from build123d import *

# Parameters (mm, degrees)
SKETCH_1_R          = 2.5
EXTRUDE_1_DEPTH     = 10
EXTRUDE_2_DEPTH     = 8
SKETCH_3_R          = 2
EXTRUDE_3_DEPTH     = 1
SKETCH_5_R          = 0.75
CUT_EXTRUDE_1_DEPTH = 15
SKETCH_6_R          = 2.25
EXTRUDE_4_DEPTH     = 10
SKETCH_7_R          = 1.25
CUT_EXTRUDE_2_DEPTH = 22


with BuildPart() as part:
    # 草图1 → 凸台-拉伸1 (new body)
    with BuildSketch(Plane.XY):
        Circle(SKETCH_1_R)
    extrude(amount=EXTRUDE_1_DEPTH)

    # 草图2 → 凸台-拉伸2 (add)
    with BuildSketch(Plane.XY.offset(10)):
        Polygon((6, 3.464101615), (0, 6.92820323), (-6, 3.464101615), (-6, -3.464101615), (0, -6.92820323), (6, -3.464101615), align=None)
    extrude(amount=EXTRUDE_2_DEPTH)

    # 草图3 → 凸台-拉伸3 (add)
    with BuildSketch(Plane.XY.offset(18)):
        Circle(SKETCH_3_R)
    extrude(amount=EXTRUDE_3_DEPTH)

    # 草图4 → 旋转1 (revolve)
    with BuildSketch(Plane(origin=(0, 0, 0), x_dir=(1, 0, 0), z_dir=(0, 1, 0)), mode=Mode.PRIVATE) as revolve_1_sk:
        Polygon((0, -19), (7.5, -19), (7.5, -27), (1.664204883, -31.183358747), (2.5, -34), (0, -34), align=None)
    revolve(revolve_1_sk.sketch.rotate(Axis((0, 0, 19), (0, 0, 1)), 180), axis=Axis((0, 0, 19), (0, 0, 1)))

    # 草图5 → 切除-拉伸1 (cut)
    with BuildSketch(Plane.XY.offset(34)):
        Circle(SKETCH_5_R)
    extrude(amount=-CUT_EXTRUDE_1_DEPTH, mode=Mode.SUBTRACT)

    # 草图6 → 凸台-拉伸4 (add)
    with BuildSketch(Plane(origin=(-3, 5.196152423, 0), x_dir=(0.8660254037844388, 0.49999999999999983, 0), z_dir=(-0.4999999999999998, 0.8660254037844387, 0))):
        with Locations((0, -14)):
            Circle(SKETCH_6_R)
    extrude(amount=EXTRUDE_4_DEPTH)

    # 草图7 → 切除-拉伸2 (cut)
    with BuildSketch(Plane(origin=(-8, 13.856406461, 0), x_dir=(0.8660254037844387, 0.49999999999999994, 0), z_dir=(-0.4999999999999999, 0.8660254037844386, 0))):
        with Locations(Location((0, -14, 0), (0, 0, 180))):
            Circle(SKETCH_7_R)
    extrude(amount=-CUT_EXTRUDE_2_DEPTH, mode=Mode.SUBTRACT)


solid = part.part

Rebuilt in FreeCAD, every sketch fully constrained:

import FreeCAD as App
import Part
import Sketcher
Q = App.Units.Quantity


def add_polygon(sketch, points):
    """Adds a closed chain of lines whose ends are joined by coincident constraints."""
    first, n = sketch.GeometryCount, len(points)
    for a, b in zip(points, points[1:] + points[:1]):
        sketch.addGeometry(Part.LineSegment(App.Vector(*a, 0), App.Vector(*b, 0)), False)
    for i in range(n):
        sketch.addConstraint(Sketcher.Constraint("Coincident", first + i, 2, first + (i + 1) % n, 1))

doc = App.newDocument("Part")
params = doc.addObject("Spreadsheet::Sheet", "Params")
for row, (alias, value) in enumerate([
    ("sketch1_diameter", "5 mm"),
    ("pad1_length", "10 mm"),
    ("pad2_length", "8 mm"),
    ("sketch3_diameter", "4 mm"),
    ("pad3_length", "1 mm"),
    ("sketch4_height", "15 mm"),
    ("sketch4_height2", "8 mm"),
    ("sketch4_width", "7.5 mm"),
    ("sketch4_width2", "2.5 mm"),
    ("revolution_angle", "360 deg"),
    ("sketch5_diameter", "1.5 mm"),
    ("pocket1_length", "15 mm"),
    ("sketch6_diameter", "4.5 mm"),
    ("pad4_length", "10 mm"),
    ("sketch7_diameter", "2.5 mm"),
    ("pocket2_length", "22 mm"),
], start=1):
    params.set(f"A{row}", alias)
    params.set(f"B{row}", "=" + value)
    params.setAlias(f"B{row}", alias)

body = doc.addObject("PartDesign::Body", "Body")

sketch1 = doc.addObject("Sketcher::SketchObject", "Sketch")
body.addObject(sketch1)
sketch1.AttachmentSupport = (doc.XY_Plane, [""])
sketch1.MapMode = "FlatFace"
sketch1.addGeometry(Part.Circle(App.Vector(0, 0, 0), App.Vector(0, 0, 1), 2.5), False)
sketch1.addConstraint([
    Sketcher.Constraint("Coincident", 0, 3, -1, 1),
    Sketcher.Constraint("Diameter", 0, Q("5 mm")),
])
sketch1.setExpression("Constraints[1]", "Params.sketch1_diameter")
pad1 = doc.addObject("PartDesign::Pad", "Pad")
body.addObject(pad1)
pad1.Profile = sketch1
pad1.setExpression("Length", "Params.pad1_length")

sketch2 = doc.addObject("Sketcher::SketchObject", "Sketch001")
body.addObject(sketch2)
sketch2.AttachmentSupport = (doc.XY_Plane, [""])
sketch2.MapMode = "FlatFace"
sketch2.AttachmentOffset = App.Placement(App.Vector(0, 0, 10), App.Rotation())
add_polygon(sketch2, [(6, 3), (0, 7), (-6, 3), (-6, -3), (0, -7), (6, -3)])
sketch2.addConstraint([
    Sketcher.Constraint("Vertical", 2),
    Sketcher.Constraint("Vertical", 5),
    Sketcher.Constraint("Symmetric", 0, 2, 3, 2, -1, 1),
    Sketcher.Constraint("Symmetric", 1, 2, 4, 2, -1, 1),
    Sketcher.Constraint("PointOnObject", 0, 2, -2),
    Sketcher.Constraint("Parallel", 0, 3),
    Sketcher.Constraint("Horizontal", 2, 2, 4, 2),
    Sketcher.Constraint("Angle", 0, Q("150 deg")),
    Sketcher.Constraint("DistanceX", 1, 2, -1, 1, Q("6 mm")),
    Sketcher.Constraint("DistanceY", -1, 1, 1, 2, Q("3.464102 mm")),
])
pad2 = doc.addObject("PartDesign::Pad", "Pad001")
body.addObject(pad2)
pad2.Profile = sketch2
pad2.setExpression("Length", "Params.pad2_length")

sketch3 = doc.addObject("Sketcher::SketchObject", "Sketch002")
body.addObject(sketch3)
sketch3.AttachmentSupport = (doc.XY_Plane, [""])
sketch3.MapMode = "FlatFace"
sketch3.AttachmentOffset = App.Placement(App.Vector(0, 0, 18), App.Rotation())
sketch3.addGeometry(Part.Circle(App.Vector(0, 0, 0), App.Vector(0, 0, 1), 2), False)
sketch3.addConstraint([
    Sketcher.Constraint("Coincident", 0, 3, -1, 1),
    Sketcher.Constraint("Diameter", 0, Q("4 mm")),
])
sketch3.setExpression("Constraints[1]", "Params.sketch3_diameter")
pad3 = doc.addObject("PartDesign::Pad", "Pad002")
body.addObject(pad3)
pad3.Profile = sketch3
pad3.setExpression("Length", "Params.pad3_length")

sketch4 = doc.addObject("Sketcher::SketchObject", "Sketch003")
body.addObject(sketch4)
sketch4.AttachmentSupport = (doc.XZ_Plane, [""])
sketch4.MapMode = "FlatFace"
add_polygon(sketch4, [(7.5, 19), (0, 19), (0, 34), (2.5, 34), (1.7, 31.2), (7.5, 27)])
sketch4.addConstraint([
    Sketcher.Constraint("Horizontal", 0),
    Sketcher.Constraint("Vertical", 1),
    Sketcher.Constraint("Horizontal", 2),
    Sketcher.Constraint("Vertical", 5),
    Sketcher.Constraint("PointOnObject", 0, 2, -2),
    Sketcher.Constraint("DistanceY", 1, 1, 1, 2, Q("15 mm")),
    Sketcher.Constraint("DistanceY", 5, 2, 5, 1, Q("8 mm")),
    Sketcher.Constraint("DistanceX", 0, 2, 0, 1, Q("7.5 mm")),
    Sketcher.Constraint("DistanceX", 2, 1, 2, 2, Q("2.5 mm")),
    Sketcher.Constraint("DistanceY", -1, 1, 0, 2, Q("19 mm")),
    Sketcher.Constraint("Distance", 3, Q("2.93803 mm")),
    Sketcher.Constraint("Distance", 4, Q("7.18032 mm")),
])
sketch4.setExpression("Constraints[11]", "Params.sketch4_height")
sketch4.setExpression("Constraints[12]", "Params.sketch4_height2")
sketch4.setExpression("Constraints[13]", "Params.sketch4_width")
sketch4.setExpression("Constraints[14]", "Params.sketch4_width2")
revolution = doc.addObject("PartDesign::Revolution", "Revolution")
body.addObject(revolution)
revolution.Profile = sketch4
revolution.ReferenceAxis = (sketch4, ["V_Axis"])
revolution.setExpression("Angle", "Params.revolution_angle")

sketch5 = doc.addObject("Sketcher::SketchObject", "Sketch004")
body.addObject(sketch5)
sketch5.AttachmentSupport = (doc.XY_Plane, [""])
sketch5.MapMode = "FlatFace"
sketch5.AttachmentOffset = App.Placement(App.Vector(0, 0, 34), App.Rotation())
sketch5.addGeometry(Part.Circle(App.Vector(0, 0, 0), App.Vector(0, 0, 1), 0.8), False)
sketch5.addConstraint([
    Sketcher.Constraint("Coincident", 0, 3, -1, 1),
    Sketcher.Constraint("Diameter", 0, Q("1.5 mm")),
])
sketch5.setExpression("Constraints[1]", "Params.sketch5_diameter")
pocket1 = doc.addObject("PartDesign::Pocket", "Pocket")
body.addObject(pocket1)
pocket1.Profile = sketch5
pocket1.setExpression("Length", "Params.pocket1_length")

sketch6 = doc.addObject("Sketcher::SketchObject", "Sketch005")
body.addObject(sketch6)
sketch6.Placement = App.Placement(App.Vector(-3, 5.196152, 0), App.Rotation(App.Vector(0.866025404, 0.5, 0), App.Vector(0, 0, -1), App.Vector(-0.5, 0.866025404, 0), "ZXY"))
sketch6.addGeometry(Part.Circle(App.Vector(0, -14, 0), App.Vector(0, 0, 1), 2.2), False)
sketch6.addConstraint([
    Sketcher.Constraint("PointOnObject", 0, 3, -2),
    Sketcher.Constraint("Diameter", 0, Q("4.5 mm")),
    Sketcher.Constraint("DistanceY", 0, 3, -1, 1, Q("14 mm")),
])
sketch6.setExpression("Constraints[1]", "Params.sketch6_diameter")
pad4 = doc.addObject("PartDesign::Pad", "Pad003")
body.addObject(pad4)
pad4.Profile = sketch6
pad4.setExpression("Length", "Params.pad4_length")

sketch7 = doc.addObject("Sketcher::SketchObject", "Sketch006")
body.addObject(sketch7)
sketch7.Placement = App.Placement(App.Vector(-8, 13.856406, 0), App.Rotation(App.Vector(0.866025404, 0.5, 0), App.Vector(0, 0, -1), App.Vector(-0.5, 0.866025404, 0), "ZXY"))
sketch7.addGeometry(Part.Circle(App.Vector(0, -14, 0), App.Vector(0, 0, 1), 1.2), False)
sketch7.addConstraint([
    Sketcher.Constraint("PointOnObject", 0, 3, -2),
    Sketcher.Constraint("Diameter", 0, Q("2.5 mm")),
    Sketcher.Constraint("DistanceY", 0, 3, -1, 1, Q("14 mm")),
])
sketch7.setExpression("Constraints[1]", "Params.sketch7_diameter")
pocket2 = doc.addObject("PartDesign::Pocket", "Pocket001")
body.addObject(pocket2)
pocket2.Profile = sketch7
pocket2.setExpression("Length", "Params.pocket2_length")

doc.recompute()
